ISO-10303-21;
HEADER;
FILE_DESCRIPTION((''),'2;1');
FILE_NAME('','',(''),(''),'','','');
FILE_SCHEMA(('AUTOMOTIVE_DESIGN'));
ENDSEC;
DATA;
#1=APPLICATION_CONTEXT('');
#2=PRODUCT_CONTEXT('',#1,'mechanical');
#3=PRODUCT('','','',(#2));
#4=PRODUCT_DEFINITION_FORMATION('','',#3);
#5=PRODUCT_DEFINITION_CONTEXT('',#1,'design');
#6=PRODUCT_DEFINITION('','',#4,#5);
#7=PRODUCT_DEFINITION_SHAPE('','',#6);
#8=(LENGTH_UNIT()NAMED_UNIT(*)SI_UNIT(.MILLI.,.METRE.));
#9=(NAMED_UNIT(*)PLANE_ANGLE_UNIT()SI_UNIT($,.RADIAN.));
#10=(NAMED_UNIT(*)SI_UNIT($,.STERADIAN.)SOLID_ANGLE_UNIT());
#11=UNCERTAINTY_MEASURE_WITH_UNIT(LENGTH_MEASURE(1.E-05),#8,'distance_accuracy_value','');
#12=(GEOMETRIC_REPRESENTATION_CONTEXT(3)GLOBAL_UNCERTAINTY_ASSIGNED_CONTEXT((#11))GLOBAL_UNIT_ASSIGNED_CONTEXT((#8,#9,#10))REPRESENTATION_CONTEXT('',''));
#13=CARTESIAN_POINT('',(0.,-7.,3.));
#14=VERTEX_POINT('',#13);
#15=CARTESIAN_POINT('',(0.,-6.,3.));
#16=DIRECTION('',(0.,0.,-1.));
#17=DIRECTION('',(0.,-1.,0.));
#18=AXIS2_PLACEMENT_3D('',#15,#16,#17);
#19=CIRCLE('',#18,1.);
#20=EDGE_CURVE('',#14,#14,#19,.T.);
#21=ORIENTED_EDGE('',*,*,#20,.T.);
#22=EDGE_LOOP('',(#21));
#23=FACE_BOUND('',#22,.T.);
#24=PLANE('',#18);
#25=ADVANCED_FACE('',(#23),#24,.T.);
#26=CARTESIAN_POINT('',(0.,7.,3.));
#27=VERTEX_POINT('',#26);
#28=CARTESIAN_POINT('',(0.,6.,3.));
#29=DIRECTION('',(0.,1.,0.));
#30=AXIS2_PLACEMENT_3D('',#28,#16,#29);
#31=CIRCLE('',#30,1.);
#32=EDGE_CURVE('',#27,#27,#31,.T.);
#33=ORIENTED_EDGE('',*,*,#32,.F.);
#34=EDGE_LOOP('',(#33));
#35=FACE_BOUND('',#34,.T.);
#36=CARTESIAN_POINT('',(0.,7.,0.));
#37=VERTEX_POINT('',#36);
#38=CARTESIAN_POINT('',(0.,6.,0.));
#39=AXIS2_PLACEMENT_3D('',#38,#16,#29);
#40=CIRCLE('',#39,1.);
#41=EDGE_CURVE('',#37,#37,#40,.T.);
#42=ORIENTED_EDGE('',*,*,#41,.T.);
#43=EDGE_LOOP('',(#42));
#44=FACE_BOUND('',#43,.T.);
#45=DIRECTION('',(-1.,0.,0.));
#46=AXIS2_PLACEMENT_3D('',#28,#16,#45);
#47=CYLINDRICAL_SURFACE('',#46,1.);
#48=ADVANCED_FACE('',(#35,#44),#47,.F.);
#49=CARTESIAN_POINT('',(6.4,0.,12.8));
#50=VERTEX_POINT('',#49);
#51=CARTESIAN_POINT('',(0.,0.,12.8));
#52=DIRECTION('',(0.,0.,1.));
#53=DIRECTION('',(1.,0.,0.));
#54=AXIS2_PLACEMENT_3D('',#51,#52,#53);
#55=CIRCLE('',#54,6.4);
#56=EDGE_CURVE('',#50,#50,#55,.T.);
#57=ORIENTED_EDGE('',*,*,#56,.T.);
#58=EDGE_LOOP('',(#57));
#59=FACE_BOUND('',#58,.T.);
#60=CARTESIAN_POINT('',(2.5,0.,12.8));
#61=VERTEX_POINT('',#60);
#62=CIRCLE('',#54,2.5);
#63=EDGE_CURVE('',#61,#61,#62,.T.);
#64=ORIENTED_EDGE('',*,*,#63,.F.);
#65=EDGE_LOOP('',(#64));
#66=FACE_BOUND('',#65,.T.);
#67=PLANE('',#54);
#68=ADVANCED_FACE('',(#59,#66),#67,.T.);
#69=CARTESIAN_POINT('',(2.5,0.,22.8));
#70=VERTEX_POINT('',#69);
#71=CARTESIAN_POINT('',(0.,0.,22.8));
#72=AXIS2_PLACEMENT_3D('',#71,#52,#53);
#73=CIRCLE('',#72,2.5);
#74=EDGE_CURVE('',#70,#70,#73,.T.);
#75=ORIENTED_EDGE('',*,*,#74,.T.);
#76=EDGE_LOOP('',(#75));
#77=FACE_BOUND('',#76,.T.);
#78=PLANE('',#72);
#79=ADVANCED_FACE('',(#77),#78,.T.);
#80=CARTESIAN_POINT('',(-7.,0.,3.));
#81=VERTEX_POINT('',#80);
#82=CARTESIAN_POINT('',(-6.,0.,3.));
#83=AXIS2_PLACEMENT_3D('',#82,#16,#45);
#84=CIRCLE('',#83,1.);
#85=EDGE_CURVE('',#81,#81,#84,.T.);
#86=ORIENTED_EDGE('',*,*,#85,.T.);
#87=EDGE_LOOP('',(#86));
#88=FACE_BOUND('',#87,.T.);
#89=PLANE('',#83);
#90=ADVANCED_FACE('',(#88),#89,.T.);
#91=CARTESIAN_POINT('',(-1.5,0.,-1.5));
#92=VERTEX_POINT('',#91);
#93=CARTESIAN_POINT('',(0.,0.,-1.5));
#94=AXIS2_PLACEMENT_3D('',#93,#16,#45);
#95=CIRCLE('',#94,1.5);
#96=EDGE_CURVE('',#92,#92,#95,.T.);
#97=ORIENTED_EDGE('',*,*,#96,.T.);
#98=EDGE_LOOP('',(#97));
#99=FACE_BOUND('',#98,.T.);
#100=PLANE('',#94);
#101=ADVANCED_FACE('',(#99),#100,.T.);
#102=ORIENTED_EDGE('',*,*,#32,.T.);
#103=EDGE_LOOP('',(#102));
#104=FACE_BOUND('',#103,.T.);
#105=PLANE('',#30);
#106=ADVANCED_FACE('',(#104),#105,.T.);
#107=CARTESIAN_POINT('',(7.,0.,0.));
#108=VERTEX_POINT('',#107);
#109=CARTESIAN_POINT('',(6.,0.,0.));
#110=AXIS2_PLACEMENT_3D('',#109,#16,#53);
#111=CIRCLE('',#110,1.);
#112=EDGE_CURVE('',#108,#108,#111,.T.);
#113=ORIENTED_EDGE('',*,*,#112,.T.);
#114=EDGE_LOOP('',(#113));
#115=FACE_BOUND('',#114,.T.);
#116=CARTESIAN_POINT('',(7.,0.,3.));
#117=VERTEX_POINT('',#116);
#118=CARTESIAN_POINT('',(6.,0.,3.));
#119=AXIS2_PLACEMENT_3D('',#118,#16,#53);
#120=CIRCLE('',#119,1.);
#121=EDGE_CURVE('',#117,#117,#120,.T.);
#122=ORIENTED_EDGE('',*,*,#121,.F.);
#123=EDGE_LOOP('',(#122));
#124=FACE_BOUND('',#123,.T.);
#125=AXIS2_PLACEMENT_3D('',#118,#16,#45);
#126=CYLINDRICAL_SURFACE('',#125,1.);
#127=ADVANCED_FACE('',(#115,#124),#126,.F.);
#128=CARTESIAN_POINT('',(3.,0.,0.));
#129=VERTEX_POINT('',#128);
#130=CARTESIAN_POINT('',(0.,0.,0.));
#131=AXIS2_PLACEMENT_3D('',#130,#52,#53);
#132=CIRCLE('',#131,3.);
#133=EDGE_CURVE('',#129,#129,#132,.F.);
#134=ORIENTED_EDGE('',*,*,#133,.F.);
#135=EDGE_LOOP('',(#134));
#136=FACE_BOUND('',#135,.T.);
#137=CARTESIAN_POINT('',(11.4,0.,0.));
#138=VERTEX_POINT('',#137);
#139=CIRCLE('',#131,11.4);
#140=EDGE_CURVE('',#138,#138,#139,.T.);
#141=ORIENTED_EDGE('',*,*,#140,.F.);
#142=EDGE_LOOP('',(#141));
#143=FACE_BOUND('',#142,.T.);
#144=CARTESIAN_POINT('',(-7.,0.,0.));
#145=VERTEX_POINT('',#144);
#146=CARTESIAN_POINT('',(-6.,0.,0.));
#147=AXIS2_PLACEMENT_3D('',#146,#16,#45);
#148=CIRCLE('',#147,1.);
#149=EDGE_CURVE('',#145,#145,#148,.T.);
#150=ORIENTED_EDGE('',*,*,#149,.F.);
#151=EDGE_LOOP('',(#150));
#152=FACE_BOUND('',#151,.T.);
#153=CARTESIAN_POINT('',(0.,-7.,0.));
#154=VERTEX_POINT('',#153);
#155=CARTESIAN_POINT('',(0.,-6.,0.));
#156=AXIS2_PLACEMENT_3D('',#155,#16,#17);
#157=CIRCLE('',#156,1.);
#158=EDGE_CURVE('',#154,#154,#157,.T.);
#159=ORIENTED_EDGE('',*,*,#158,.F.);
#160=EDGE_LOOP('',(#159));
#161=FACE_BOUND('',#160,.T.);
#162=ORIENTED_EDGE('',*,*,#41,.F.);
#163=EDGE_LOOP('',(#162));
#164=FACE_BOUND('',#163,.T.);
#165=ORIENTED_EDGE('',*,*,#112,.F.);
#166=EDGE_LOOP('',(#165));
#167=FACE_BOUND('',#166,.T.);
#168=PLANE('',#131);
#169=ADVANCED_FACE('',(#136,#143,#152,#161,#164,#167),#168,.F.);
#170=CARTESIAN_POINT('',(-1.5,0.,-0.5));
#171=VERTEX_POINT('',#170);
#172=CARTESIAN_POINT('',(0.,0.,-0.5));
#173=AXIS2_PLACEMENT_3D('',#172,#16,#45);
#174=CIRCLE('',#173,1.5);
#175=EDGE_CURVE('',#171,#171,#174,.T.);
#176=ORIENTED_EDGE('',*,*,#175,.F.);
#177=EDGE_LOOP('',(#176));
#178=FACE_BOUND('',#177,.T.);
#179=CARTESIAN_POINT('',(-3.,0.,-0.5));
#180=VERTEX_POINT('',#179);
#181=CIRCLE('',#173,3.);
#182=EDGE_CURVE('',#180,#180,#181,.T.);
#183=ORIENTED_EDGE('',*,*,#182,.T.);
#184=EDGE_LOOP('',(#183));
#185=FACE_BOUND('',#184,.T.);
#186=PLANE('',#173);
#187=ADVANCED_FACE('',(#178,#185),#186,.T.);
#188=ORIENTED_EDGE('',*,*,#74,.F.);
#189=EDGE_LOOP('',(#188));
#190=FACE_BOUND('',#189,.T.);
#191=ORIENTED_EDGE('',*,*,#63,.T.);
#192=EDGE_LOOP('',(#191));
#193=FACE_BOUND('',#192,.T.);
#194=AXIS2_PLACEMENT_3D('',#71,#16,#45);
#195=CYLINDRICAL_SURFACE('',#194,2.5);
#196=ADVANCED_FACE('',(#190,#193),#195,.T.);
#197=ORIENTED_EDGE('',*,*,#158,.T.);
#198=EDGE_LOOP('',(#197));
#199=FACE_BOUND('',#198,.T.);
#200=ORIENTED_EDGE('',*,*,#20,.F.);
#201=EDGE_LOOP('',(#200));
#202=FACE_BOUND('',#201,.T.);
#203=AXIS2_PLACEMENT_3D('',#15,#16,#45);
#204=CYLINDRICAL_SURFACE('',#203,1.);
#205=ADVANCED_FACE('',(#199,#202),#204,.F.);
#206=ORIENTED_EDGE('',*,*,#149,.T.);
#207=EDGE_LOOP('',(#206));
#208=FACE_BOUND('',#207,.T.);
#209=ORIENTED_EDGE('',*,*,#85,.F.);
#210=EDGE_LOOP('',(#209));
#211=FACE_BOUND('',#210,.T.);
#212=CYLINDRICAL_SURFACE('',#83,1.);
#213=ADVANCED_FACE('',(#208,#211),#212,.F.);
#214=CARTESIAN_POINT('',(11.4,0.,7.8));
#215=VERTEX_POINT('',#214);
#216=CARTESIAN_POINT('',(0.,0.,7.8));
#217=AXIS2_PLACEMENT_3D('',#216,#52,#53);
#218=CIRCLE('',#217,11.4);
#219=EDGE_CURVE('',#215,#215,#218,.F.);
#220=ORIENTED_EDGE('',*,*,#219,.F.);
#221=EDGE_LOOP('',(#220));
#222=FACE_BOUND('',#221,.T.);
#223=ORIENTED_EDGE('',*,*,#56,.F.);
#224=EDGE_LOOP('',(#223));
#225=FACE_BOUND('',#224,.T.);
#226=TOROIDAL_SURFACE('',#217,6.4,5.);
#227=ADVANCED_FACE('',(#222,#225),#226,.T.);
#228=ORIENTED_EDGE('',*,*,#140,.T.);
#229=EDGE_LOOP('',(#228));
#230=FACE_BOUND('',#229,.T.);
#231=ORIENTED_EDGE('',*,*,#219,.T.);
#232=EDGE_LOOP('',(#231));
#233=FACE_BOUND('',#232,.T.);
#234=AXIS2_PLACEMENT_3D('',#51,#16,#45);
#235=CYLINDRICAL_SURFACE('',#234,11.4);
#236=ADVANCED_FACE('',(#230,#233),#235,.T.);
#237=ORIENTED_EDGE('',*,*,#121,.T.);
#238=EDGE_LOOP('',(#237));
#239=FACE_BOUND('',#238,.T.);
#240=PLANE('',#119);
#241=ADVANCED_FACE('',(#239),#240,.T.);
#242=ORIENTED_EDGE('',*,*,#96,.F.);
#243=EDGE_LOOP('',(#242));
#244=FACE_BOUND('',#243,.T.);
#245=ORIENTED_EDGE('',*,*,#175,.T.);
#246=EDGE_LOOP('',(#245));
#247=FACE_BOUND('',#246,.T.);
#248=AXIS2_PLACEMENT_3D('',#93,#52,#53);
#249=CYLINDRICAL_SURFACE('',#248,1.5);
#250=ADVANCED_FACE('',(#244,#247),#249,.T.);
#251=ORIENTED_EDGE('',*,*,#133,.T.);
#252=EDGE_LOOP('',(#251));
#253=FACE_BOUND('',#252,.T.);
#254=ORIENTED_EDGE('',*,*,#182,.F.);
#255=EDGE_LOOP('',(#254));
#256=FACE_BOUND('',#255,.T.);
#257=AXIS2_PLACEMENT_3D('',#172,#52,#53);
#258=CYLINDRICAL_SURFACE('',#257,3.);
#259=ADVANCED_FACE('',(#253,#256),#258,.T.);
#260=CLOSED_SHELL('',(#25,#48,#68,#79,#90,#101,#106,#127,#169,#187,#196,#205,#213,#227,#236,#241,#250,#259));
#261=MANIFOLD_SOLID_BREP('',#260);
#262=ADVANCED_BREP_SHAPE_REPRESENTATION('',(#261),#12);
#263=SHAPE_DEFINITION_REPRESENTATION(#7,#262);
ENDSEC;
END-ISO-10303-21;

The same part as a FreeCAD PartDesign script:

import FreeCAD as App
import Part
import Sketcher
from FreeCAD import Vector


def edges_at(feature, points):
    """Names of the edges that pass closest to the given points."""
    edges = feature.Shape.Edges
    near = lambda p: min(range(len(edges)), key=lambda i: edges[i].distToShape(Part.Vertex(*p))[0])
    return sorted({f"Edge{near(p) + 1}" for p in points})

doc = App.newDocument("Part")
body = doc.addObject("PartDesign::Body", "Body")

# Sketch on XY plane
sketch1 = doc.addObject("Sketcher::SketchObject", "Sketch")
body.addObject(sketch1)
sketch1.AttachmentSupport = (doc.XY_Plane, [""])
sketch1.MapMode = "FlatFace"
sketch1.addGeometry(Part.Circle(Vector(0, 0, 0), Vector(0, 0, 1), 11.4), False)
sketch1.addConstraint([
    Sketcher.Constraint("Coincident", 0, 3, -1, 1),
    Sketcher.Constraint("Diameter", 0, 22.8),
])
pad1 = doc.addObject("PartDesign::Pad", "Pad")
body.addObject(pad1)
pad1.Profile = sketch1
pad1.Length = 12.8

# Sketch on XY plane
sketch2 = doc.addObject("Sketcher::SketchObject", "Sketch001")
body.addObject(sketch2)
sketch2.AttachmentSupport = (doc.XY_Plane, [""])
sketch2.MapMode = "FlatFace"
sketch2.addGeometry(Part.Circle(Vector(-6, 0, 0), Vector(0, 0, 1), 1), False)
sketch2.addConstraint([
    Sketcher.Constraint("PointOnObject", 0, 3, -1),
    Sketcher.Constraint("Diameter", 0, 2.0),
    Sketcher.Constraint("DistanceX", 0, 3, -1, 1, 6.0),
])
pocket1 = doc.addObject("PartDesign::Pocket", "Pocket")
body.addObject(pocket1)
pocket1.Profile = sketch2
pocket1.Length = 3
pocket1.Reversed = True
doc.recompute()

polarpattern = doc.addObject("PartDesign::PolarPattern", "PolarPattern")
body.addObject(polarpattern)
polarpattern.Originals = [pocket1]
polarpattern.Axis = (doc.Z_Axis, [""])
polarpattern.Angle = 360
polarpattern.Occurrences = 4
body.Tip = polarpattern

# Sketch on XY plane
sketch3 = doc.addObject("Sketcher::SketchObject", "Sketch002")
body.addObject(sketch3)
sketch3.AttachmentSupport = (doc.XY_Plane, [""])
sketch3.MapMode = "FlatFace"
sketch3.addGeometry(Part.Circle(Vector(0, 0, 0), Vector(0, 0, 1), 3), False)
sketch3.addConstraint([
    Sketcher.Constraint("Coincident", 0, 3, -1, 1),
    Sketcher.Constraint("Diameter", 0, 6.0),
])
pad2 = doc.addObject("PartDesign::Pad", "Pad001")
body.addObject(pad2)
pad2.Profile = sketch3
pad2.Length = 0.5
pad2.Reversed = True

# Sketch on XY plane
sketch4 = doc.addObject("Sketcher::SketchObject", "Sketch003")
body.addObject(sketch4)
sketch4.AttachmentSupport = (doc.XY_Plane, [""])
sketch4.MapMode = "FlatFace"
sketch4.AttachmentOffset = App.Placement(Vector(0, 0, -0.5), App.Rotation())
sketch4.addGeometry(Part.Circle(Vector(0, 0, 0), Vector(0, 0, 1), 1.5), False)
sketch4.addConstraint([
    Sketcher.Constraint("Coincident", 0, 3, -1, 1),
    Sketcher.Constraint("Diameter", 0, 3.0),
])
pad3 = doc.addObject("PartDesign::Pad", "Pad002")
body.addObject(pad3)
pad3.Profile = sketch4
pad3.Length = 1
pad3.Reversed = True

# Sketch on XY plane
sketch5 = doc.addObject("Sketcher::SketchObject", "Sketch004")
body.addObject(sketch5)
sketch5.AttachmentSupport = (doc.XY_Plane, [""])
sketch5.MapMode = "FlatFace"
sketch5.AttachmentOffset = App.Placement(Vector(0, 0, 12.8), App.Rotation())
sketch5.addGeometry(Part.Circle(Vector(0, 0, 0), Vector(0, 0, 1), 2.5), False)
sketch5.addConstraint([
    Sketcher.Constraint("Coincident", 0, 3, -1, 1),
    Sketcher.Constraint("Diameter", 0, 5.0),
])
pad4 = doc.addObject("PartDesign::Pad", "Pad003")
body.addObject(pad4)
pad4.Profile = sketch5
pad4.Length = 10
doc.recompute()

fillet = doc.addObject("PartDesign::Fillet", "Fillet")
body.addObject(fillet)
fillet.Base = (pad4, edges_at(pad4, [(-11.4, 0, 12.8)]))
fillet.Radius = 5

doc.recompute()
